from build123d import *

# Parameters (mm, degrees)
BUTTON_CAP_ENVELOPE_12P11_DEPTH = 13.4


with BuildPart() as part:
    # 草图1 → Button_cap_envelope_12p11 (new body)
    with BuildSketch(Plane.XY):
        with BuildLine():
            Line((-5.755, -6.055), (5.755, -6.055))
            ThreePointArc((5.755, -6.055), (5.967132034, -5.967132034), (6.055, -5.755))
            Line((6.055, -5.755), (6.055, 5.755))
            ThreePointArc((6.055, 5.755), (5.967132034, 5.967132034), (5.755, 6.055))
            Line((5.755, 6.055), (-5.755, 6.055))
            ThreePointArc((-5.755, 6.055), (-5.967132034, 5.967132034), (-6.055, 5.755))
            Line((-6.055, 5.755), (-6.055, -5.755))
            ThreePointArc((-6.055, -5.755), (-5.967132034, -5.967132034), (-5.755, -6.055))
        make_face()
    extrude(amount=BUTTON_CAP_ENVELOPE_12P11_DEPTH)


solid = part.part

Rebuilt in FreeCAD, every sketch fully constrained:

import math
import FreeCAD as App
import Part
import Sketcher
from FreeCAD import Vector
Q = App.Units.Quantity

doc = App.newDocument("Part")
body = doc.addObject("PartDesign::Body", "Body")

sketch1 = body.newObject("Sketcher::SketchObject", "Sketch")
sketch1.AttachmentSupport = (doc.getObject("XY_Plane"), [""])
sketch1.MapMode = "FlatFace"
sketch1.addGeometry(Part.LineSegment(Vector(-5.755, -6.055, 0), Vector(5.755, -6.055, 0)), False)
sketch1.addGeometry(Part.ArcOfCircle(Part.Circle(Vector(5.755, -5.755, 0), Vector(0, 0, 1), 0.3), math.radians(-90), math.radians(0)), False)
sketch1.addGeometry(Part.LineSegment(Vector(6.055, -5.755, 0), Vector(6.055, 5.755, 0)), False)
sketch1.addGeometry(Part.ArcOfCircle(Part.Circle(Vector(5.755, 5.755, 0), Vector(0, 0, 1), 0.3), math.radians(0), math.radians(90)), False)
sketch1.addGeometry(Part.LineSegment(Vector(5.755, 6.055, 0), Vector(-5.755, 6.055, 0)), False)
sketch1.addGeometry(Part.ArcOfCircle(Part.Circle(Vector(-5.755, 5.755, 0), Vector(0, 0, 1), 0.3), math.radians(90), math.radians(180)), False)
sketch1.addGeometry(Part.LineSegment(Vector(-6.055, 5.755, 0), Vector(-6.055, -5.755, 0)), False)
sketch1.addGeometry(Part.ArcOfCircle(Part.Circle(Vector(-5.755, -5.755, 0), Vector(0, 0, 1), 0.3), math.radians(-180), math.radians(-90)), False)
sketch1.addConstraint(Sketcher.Constraint("Tangent", 0, 2, 1, 1))
sketch1.addConstraint(Sketcher.Constraint("Tangent", 1, 2, 2, 1))
sketch1.addConstraint(Sketcher.Constraint("Tangent", 2, 2, 3, 1))
sketch1.addConstraint(Sketcher.Constraint("Tangent", 3, 2, 4, 1))
sketch1.addConstraint(Sketcher.Constraint("Tangent", 4, 2, 5, 1))
sketch1.addConstraint(Sketcher.Constraint("Tangent", 5, 2, 6, 1))
sketch1.addConstraint(Sketcher.Constraint("Tangent", 6, 2, 7, 1))
sketch1.addConstraint(Sketcher.Constraint("Tangent", 7, 2, 0, 1))
sketch1.addConstraint(Sketcher.Constraint("Horizontal", 0))
sketch1.addConstraint(Sketcher.Constraint("Vertical", 2))
sketch1.addConstraint(Sketcher.Constraint("Horizontal", 4))
sketch1.addConstraint(Sketcher.Constraint("Vertical", 6))
sketch1.addConstraint(Sketcher.Constraint("Equal", 1, 3))
sketch1.addConstraint(Sketcher.Constraint("Equal", 3, 5))
sketch1.addConstraint(Sketcher.Constraint("Equal", 5, 7))
sketch1.addConstraint(Sketcher.Constraint("Symmetric", 1, 3, 5, 3, -1, 1))
sketch1.addConstraint(Sketcher.Constraint("Equal", 4, 2))
sketch1.addConstraint(Sketcher.Constraint("Radius", 1, Q("0.3 mm")))
sketch1.addConstraint(Sketcher.Constraint("DistanceX", 0, 1, 0, 2, Q("11.51 mm")))
pad1 = body.newObject("PartDesign::Pad", "Pad")
pad1.Profile = sketch1
pad1.Length = 13.4

doc.recompute()
